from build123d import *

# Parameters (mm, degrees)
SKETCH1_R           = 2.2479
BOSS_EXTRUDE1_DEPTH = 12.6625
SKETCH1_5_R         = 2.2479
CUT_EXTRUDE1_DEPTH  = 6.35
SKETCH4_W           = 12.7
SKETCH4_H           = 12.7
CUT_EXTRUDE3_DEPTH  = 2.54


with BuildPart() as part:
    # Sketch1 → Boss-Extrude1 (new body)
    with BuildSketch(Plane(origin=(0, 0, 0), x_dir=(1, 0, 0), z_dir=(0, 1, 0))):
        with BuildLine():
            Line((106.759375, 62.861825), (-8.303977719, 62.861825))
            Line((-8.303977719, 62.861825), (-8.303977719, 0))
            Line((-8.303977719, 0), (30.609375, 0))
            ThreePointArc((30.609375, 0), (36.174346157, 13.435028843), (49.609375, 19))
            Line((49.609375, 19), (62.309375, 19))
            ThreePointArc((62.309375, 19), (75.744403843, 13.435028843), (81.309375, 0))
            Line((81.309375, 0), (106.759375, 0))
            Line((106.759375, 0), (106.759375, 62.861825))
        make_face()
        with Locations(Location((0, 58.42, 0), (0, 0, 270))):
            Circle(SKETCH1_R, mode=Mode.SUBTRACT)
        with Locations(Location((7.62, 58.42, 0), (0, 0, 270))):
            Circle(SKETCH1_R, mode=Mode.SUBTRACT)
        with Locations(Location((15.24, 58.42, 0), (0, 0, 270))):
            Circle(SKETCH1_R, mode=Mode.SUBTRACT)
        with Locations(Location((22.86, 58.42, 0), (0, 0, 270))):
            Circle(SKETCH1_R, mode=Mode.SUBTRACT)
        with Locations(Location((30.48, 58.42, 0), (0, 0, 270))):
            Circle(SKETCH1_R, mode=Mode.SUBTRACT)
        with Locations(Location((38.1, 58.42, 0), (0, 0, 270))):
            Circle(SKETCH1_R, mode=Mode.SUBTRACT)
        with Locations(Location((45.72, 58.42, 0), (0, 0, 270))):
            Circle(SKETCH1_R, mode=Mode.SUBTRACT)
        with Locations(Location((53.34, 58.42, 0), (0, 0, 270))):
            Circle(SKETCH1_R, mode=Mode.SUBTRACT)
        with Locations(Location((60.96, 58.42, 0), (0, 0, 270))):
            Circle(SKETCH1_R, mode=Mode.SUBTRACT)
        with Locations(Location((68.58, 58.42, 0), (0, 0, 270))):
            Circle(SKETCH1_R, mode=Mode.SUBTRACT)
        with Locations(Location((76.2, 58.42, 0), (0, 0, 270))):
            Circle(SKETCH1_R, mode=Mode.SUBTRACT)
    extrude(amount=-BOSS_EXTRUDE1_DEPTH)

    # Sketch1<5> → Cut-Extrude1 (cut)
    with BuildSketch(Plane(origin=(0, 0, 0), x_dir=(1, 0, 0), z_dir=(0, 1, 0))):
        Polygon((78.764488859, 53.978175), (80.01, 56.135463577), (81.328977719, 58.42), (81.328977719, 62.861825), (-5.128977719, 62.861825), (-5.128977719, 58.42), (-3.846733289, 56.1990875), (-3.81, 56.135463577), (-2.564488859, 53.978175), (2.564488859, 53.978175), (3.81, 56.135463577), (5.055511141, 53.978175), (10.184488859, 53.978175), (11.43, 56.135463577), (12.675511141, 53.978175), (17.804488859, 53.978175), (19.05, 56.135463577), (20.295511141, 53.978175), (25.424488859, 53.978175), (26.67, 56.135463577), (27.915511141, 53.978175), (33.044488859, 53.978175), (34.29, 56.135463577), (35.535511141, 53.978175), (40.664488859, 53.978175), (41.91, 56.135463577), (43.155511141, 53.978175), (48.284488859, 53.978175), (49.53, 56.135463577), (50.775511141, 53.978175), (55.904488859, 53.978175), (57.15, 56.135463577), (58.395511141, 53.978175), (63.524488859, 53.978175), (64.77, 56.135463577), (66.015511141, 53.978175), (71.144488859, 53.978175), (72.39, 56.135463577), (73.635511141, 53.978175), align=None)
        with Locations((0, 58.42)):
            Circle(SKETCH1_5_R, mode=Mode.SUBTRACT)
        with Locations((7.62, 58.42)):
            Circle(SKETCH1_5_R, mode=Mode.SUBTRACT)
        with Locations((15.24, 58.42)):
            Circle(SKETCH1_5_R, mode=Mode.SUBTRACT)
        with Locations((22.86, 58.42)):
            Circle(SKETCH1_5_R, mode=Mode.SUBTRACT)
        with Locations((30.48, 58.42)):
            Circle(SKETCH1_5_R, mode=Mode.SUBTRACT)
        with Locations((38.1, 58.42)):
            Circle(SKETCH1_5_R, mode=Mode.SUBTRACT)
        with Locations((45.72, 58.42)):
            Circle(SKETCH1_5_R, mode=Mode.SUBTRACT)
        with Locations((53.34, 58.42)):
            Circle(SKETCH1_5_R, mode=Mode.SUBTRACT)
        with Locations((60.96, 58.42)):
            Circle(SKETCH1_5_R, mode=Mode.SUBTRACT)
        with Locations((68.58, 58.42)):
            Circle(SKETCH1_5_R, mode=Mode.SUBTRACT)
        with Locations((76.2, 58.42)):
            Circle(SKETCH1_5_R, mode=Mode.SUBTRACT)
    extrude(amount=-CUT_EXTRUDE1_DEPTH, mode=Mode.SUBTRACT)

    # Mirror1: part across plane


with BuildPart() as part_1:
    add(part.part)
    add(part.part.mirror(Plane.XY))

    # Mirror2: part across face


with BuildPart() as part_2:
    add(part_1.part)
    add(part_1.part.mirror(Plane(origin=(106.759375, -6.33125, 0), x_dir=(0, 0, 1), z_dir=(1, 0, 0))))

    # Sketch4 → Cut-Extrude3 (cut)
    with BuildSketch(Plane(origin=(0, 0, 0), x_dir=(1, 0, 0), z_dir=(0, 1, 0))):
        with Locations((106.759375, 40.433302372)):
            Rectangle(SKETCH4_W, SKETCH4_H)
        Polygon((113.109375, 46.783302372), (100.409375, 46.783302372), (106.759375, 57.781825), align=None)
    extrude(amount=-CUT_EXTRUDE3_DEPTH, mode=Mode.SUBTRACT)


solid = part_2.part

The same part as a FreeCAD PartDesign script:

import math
import FreeCAD as App
import Part
import Sketcher
Q = App.Units.Quantity


def add_polygon(sketch, points):
    """Adds a closed chain of lines whose ends are joined by coincident constraints."""
    first, n = sketch.GeometryCount, len(points)
    for a, b in zip(points, points[1:] + points[:1]):
        sketch.addGeometry(Part.LineSegment(App.Vector(*a, 0), App.Vector(*b, 0)), False)
    for i in range(n):
        sketch.addConstraint(Sketcher.Constraint("Coincident", first + i, 2, first + (i + 1) % n, 1))

doc = App.newDocument("Part")
body = doc.addObject("PartDesign::Body", "Body")

# Sketch on XZ plane
sketch1 = doc.addObject("Sketcher::SketchObject", "Sketch")
body.addObject(sketch1)
sketch1.AttachmentSupport = (doc.XZ_Plane, [""])
sketch1.MapMode = "FlatFace"
sketch1.addGeometry([
    Part.LineSegment(App.Vector(106.759375, -62.861825, 0), App.Vector(-8.303978, -62.861825, 0)),  # 0
    Part.LineSegment(App.Vector(-8.303978, -62.861825, 0), App.Vector(-8.303978, 0, 0)),  # 1
    Part.LineSegment(App.Vector(-8.303978, 0, 0), App.Vector(30.609375, 0, 0)),  # 2
    Part.ArcOfCircle(Part.Circle(App.Vector(49.609375, 0, 0), App.Vector(0, 0, 1), 19), math.radians(180), math.radians(270)),  # 3
    Part.LineSegment(App.Vector(49.609375, -19, 0), App.Vector(62.309375, -19, 0)),  # 4
    Part.ArcOfCircle(Part.Circle(App.Vector(62.309375, 0, 0), App.Vector(0, 0, 1), 19), math.radians(-90), math.radians(0)),  # 5
    Part.LineSegment(App.Vector(81.309375, 0, 0), App.Vector(106.759375, 0, 0)),  # 6
    Part.LineSegment(App.Vector(106.759375, 0, 0), App.Vector(106.759375, -62.861825, 0)),  # 7
    Part.Circle(App.Vector(0, -58.42, 0), App.Vector(0, 0, 1), 2.2479),  # 8
    Part.Circle(App.Vector(7.62, -58.42, 0), App.Vector(0, 0, 1), 2.2479),  # 9
    Part.Circle(App.Vector(15.24, -58.42, 0), App.Vector(0, 0, 1), 2.2479),  # 10
    Part.Circle(App.Vector(22.86, -58.42, 0), App.Vector(0, 0, 1), 2.2479),  # 11
    Part.Circle(App.Vector(30.48, -58.42, 0), App.Vector(0, 0, 1), 2.2479),  # 12
    Part.Circle(App.Vector(38.1, -58.42, 0), App.Vector(0, 0, 1), 2.2479),  # 13
    Part.Circle(App.Vector(45.72, -58.42, 0), App.Vector(0, 0, 1), 2.2479),  # 14
    Part.Circle(App.Vector(53.34, -58.42, 0), App.Vector(0, 0, 1), 2.2479),  # 15
    Part.Circle(App.Vector(60.96, -58.42, 0), App.Vector(0, 0, 1), 2.2479),  # 16
    Part.Circle(App.Vector(68.58, -58.42, 0), App.Vector(0, 0, 1), 2.2479),  # 17
    Part.Circle(App.Vector(76.2, -58.42, 0), App.Vector(0, 0, 1), 2.2479),  # 18
], False)
sketch1.addConstraint([
    Sketcher.Constraint("Coincident", 0, 2, 1, 1),
    Sketcher.Constraint("Coincident", 1, 2, 2, 1),
    Sketcher.Constraint("Coincident", 2, 2, 3, 1),
    Sketcher.Constraint("Tangent", 3, 2, 4, 1),
    Sketcher.Constraint("Tangent", 4, 2, 5, 1),
    Sketcher.Constraint("Coincident", 5, 2, 6, 1),
    Sketcher.Constraint("Coincident", 6, 2, 7, 1),
    Sketcher.Constraint("Coincident", 7, 2, 0, 1),
    Sketcher.Constraint("Horizontal", 0),
    Sketcher.Constraint("Vertical", 1),
    Sketcher.Constraint("Horizontal", 2),
    Sketcher.Constraint("Horizontal", 4),
    Sketcher.Constraint("Horizontal", 6),
    Sketcher.Constraint("Vertical", 7),
    Sketcher.Constraint("Equal", 3, 5),
    Sketcher.Constraint("Equal", 8, 9),
    Sketcher.Constraint("Equal", 9, 10),
    Sketcher.Constraint("Equal", 10, 11),
    Sketcher.Constraint("Equal", 11, 12),
    Sketcher.Constraint("Equal", 12, 13),
    Sketcher.Constraint("Equal", 13, 14),
    Sketcher.Constraint("Equal", 14, 15),
    Sketcher.Constraint("Equal", 15, 16),
    Sketcher.Constraint("Equal", 16, 17),
    Sketcher.Constraint("Equal", 17, 18),
    Sketcher.Constraint("PointOnObject", 3, 3, -1),
    Sketcher.Constraint("PointOnObject", 8, 3, -2),
    Sketcher.Constraint("PointOnObject", 1, 2, -1),
    Sketcher.Constraint("PointOnObject", 5, 2, -1),
    Sketcher.Constraint("Horizontal", 8, 3, 9, 3),
    Sketcher.Constraint("Horizontal", 9, 3, 10, 3),
    Sketcher.Constraint("Horizontal", 10, 3, 11, 3),
    Sketcher.Constraint("Horizontal", 11, 3, 12, 3),
    Sketcher.Constraint("Horizontal", 12, 3, 13, 3),
    Sketcher.Constraint("Horizontal", 13, 3, 14, 3),
    Sketcher.Constraint("Horizontal", 14, 3, 15, 3),
    Sketcher.Constraint("Horizontal", 15, 3, 16, 3),
    Sketcher.Constraint("Horizontal", 16, 3, 17, 3),
    Sketcher.Constraint("Horizontal", 17, 3, 18, 3),
    Sketcher.Constraint("Diameter", 8, Q("0.177 in")),
    Sketcher.Constraint("DistanceX", 4, 1, 4, 2, Q("0.5 in")),
    Sketcher.Constraint("DistanceX", -1, 1, 18, 3, Q("3 in")),
    Sketcher.Constraint("DistanceY", 8, 3, -1, 1, Q("2.3 in")),
    Sketcher.Constraint("DistanceX", -1, 1, 9, 3, Q("0.3 in")),
    Sketcher.Constraint("DistanceX", -1, 1, 10, 3, Q("0.6 in")),
    Sketcher.Constraint("DistanceX", -1, 1, 11, 3, Q("0.9 in")),
    Sketcher.Constraint("DistanceX", -1, 1, 12, 3, Q("1.2 in")),
    Sketcher.Constraint("DistanceX", -1, 1, 13, 3, Q("1.5 in")),
    Sketcher.Constraint("DistanceX", -1, 1, 14, 3, Q("1.8 in")),
    Sketcher.Constraint("DistanceX", -1, 1, 15, 3, Q("2.1 in")),
    Sketcher.Constraint("DistanceX", -1, 1, 16, 3, Q("2.4 in")),
    Sketcher.Constraint("DistanceX", -1, 1, 17, 3, Q("2.7 in")),
    Sketcher.Constraint("Radius", 3, 19.0),
    Sketcher.Constraint("DistanceX", 5, 3, 6, 2, Q("1.75 in")),
    Sketcher.Constraint("DistanceX", -1, 1, 3, 3, Q("1.953125 in")),
    Sketcher.Constraint("DistanceX", 0, 2, 0, 1, 115.063353),
    Sketcher.Constraint("DistanceY", 1, 1, 1, 2, 62.861825),
])
pad1 = doc.addObject("PartDesign::Pad", "Pad")
body.addObject(pad1)
pad1.Profile = sketch1
pad1.Length = 12.6625

# Sketch on XZ plane
sketch2 = doc.addObject("Sketcher::SketchObject", "Sketch001")
body.addObject(sketch2)
sketch2.AttachmentSupport = (doc.XZ_Plane, [""])
sketch2.MapMode = "FlatFace"
add_polygon(sketch2, [(78.764489, -53.978175), (80.01, -56.135464), (81.328978, -58.42), (81.328978, -62.861825), (-5.128978, -62.861825), (-5.128978, -58.42), (-3.846733, -56.199087), (-3.81, -56.135464), (-2.564489, -53.978175), (2.564489, -53.978175), (3.81, -56.135464), (5.055511, -53.978175), (10.184489, -53.978175), (11.43, -56.135464), (12.675511, -53.978175), (17.804489, -53.978175), (19.05, -56.135464), (20.295511, -53.978175), (25.424489, -53.978175), (26.67, -56.135464), (27.915511, -53.978175), (33.044489, -53.978175), (34.29, -56.135464), (35.535511, -53.978175), (40.664489, -53.978175), (41.91, -56.135464), (43.155511, -53.978175), (48.284489, -53.978175), (49.53, -56.135464), (50.775511, -53.978175), (55.904489, -53.978175), (57.15, -56.135464), (58.395511, -53.978175), (63.524489, -53.978175), (64.77, -56.135464), (66.015511, -53.978175), (71.144489, -53.978175), (72.39, -56.135464), (73.635511, -53.978175)])  # lines 0-38
sketch2.addGeometry(Part.Circle(App.Vector(0, -58.42, 0), App.Vector(0, 0, 1), 2.2479), False)  # 39
sketch2.addGeometry(Part.Circle(App.Vector(7.62, -58.42, 0), App.Vector(0, 0, 1), 2.2479), False)  # 40
sketch2.addGeometry(Part.Circle(App.Vector(15.24, -58.42, 0), App.Vector(0, 0, 1), 2.2479), False)  # 41
sketch2.addGeometry(Part.Circle(App.Vector(22.86, -58.42, 0), App.Vector(0, 0, 1), 2.2479), False)  # 42
sketch2.addGeometry(Part.Circle(App.Vector(30.48, -58.42, 0), App.Vector(0, 0, 1), 2.2479), False)  # 43
sketch2.addGeometry(Part.Circle(App.Vector(38.1, -58.42, 0), App.Vector(0, 0, 1), 2.2479), False)  # 44
sketch2.addGeometry(Part.Circle(App.Vector(45.72, -58.42, 0), App.Vector(0, 0, 1), 2.2479), False)  # 45
sketch2.addGeometry(Part.Circle(App.Vector(53.34, -58.42, 0), App.Vector(0, 0, 1), 2.2479), False)  # 46
sketch2.addGeometry(Part.Circle(App.Vector(60.96, -58.42, 0), App.Vector(0, 0, 1), 2.2479), False)  # 47
sketch2.addGeometry(Part.Circle(App.Vector(68.58, -58.42, 0), App.Vector(0, 0, 1), 2.2479), False)  # 48
sketch2.addGeometry(Part.Circle(App.Vector(76.2, -58.42, 0), App.Vector(0, 0, 1), 2.2479), False)  # 49
sketch2.addConstraint([
    Sketcher.Constraint("Vertical", 2),
    Sketcher.Constraint("Horizontal", 3),
    Sketcher.Constraint("Vertical", 4),
    Sketcher.Constraint("Horizontal", 8),
    Sketcher.Constraint("Horizontal", 11),
    Sketcher.Constraint("Horizontal", 14),
    Sketcher.Constraint("Horizontal", 17),
    Sketcher.Constraint("Horizontal", 20),
    Sketcher.Constraint("Horizontal", 23),
    Sketcher.Constraint("Horizontal", 26),
    Sketcher.Constraint("Horizontal", 29),
    Sketcher.Constraint("Horizontal", 32),
    Sketcher.Constraint("Horizontal", 35),
    Sketcher.Constraint("Horizontal", 38),
    Sketcher.Constraint("Equal", 39, 40),
    Sketcher.Constraint("Equal", 40, 41),
    Sketcher.Constraint("Equal", 41, 42),
    Sketcher.Constraint("Equal", 42, 43),
    Sketcher.Constraint("Equal", 43, 44),
    Sketcher.Constraint("Equal", 44, 45),
    Sketcher.Constraint("Equal", 45, 46),
    Sketcher.Constraint("Equal", 46, 47),
    Sketcher.Constraint("Equal", 47, 48),
    Sketcher.Constraint("Equal", 48, 49),
    Sketcher.Constraint("Symmetric", 6, 2, 9, 2, -2),
    Sketcher.Constraint("PointOnObject", 39, 3, -2),
    Sketcher.Constraint("Parallel", 0, 1),
    Sketcher.Constraint("Parallel", 5, 6),
    Sketcher.Constraint("Parallel", 6, 7),
    Sketcher.Constraint("Parallel", 1, 9),
    Sketcher.Constraint("Parallel", 7, 10),
    Sketcher.Constraint("Parallel", 9, 12),
    Sketcher.Constraint("Parallel", 10, 13),
    Sketcher.Constraint("Parallel", 12, 15),
    Sketcher.Constraint("Parallel", 13, 16),
    Sketcher.Constraint("Parallel", 15, 18),
    Sketcher.Constraint("Parallel", 16, 19),
    Sketcher.Constraint("Parallel", 18, 21),
    Sketcher.Constraint("Parallel", 19, 22),
    Sketcher.Constraint("Parallel", 21, 24),
    Sketcher.Constraint("Parallel", 22, 25),
    Sketcher.Constraint("Parallel", 24, 27),
    Sketcher.Constraint("Parallel", 25, 28),
    Sketcher.Constraint("Parallel", 27, 30),
    Sketcher.Constraint("Parallel", 28, 31),
    Sketcher.Constraint("Parallel", 30, 33),
    Sketcher.Constraint("Parallel", 31, 34),
    Sketcher.Constraint("Parallel", 33, 36),
    Sketcher.Constraint("Parallel", 34, 37),
    Sketcher.Constraint("Horizontal", 39, 3, 40, 3),
    Sketcher.Constraint("Horizontal", 40, 3, 41, 3),
    Sketcher.Constraint("Horizontal", 41, 3, 42, 3),
    Sketcher.Constraint("Horizontal", 42, 3, 43, 3),
    Sketcher.Constraint("Horizontal", 43, 3, 44, 3),
    Sketcher.Constraint("Horizontal", 44, 3, 45, 3),
    Sketcher.Constraint("Horizontal", 45, 3, 46, 3),
    Sketcher.Constraint("Horizontal", 46, 3, 47, 3),
    Sketcher.Constraint("Horizontal", 47, 3, 48, 3),
    Sketcher.Constraint("Horizontal", 48, 3, 49, 3),
    Sketcher.Constraint("Horizontal", 49, 3, 1, 2),
    Sketcher.Constraint("Horizontal", 1, 2, 4, 2),
    Sketcher.Constraint("Horizontal", 0, 2, 6, 2),
    Sketcher.Constraint("Horizontal", 8, 2, 10, 2),
    Sketcher.Constraint("Horizontal", 9, 2, 12, 2),
    Sketcher.Constraint("Horizontal", 11, 2, 13, 2),
    Sketcher.Constraint("Horizontal", 12, 2, 15, 2),
    Sketcher.Constraint("Horizontal", 14, 2, 16, 2),
    Sketcher.Constraint("Horizontal", 15, 2, 18, 2),
    Sketcher.Constraint("Horizontal", 17, 2, 19, 2),
    Sketcher.Constraint("Horizontal", 18, 2, 21, 2),
    Sketcher.Constraint("Horizontal", 20, 2, 22, 2),
    Sketcher.Constraint("Horizontal", 21, 2, 24, 2),
    Sketcher.Constraint("Horizontal", 23, 2, 25, 2),
    Sketcher.Constraint("Horizontal", 24, 2, 27, 2),
    Sketcher.Constraint("Horizontal", 26, 2, 28, 2),
    Sketcher.Constraint("Horizontal", 27, 2, 30, 2),
    Sketcher.Constraint("Horizontal", 29, 2, 31, 2),
    Sketcher.Constraint("Horizontal", 30, 2, 33, 2),
    Sketcher.Constraint("Horizontal", 32, 2, 34, 2),
    Sketcher.Constraint("Horizontal", 33, 2, 36, 2),
    Sketcher.Constraint("Horizontal", 35, 2, 37, 2),
    Sketcher.Constraint("Equal", 8, 11),
    Sketcher.Constraint("Equal", 11, 14),
    Sketcher.Constraint("Equal", 14, 17),
    Sketcher.Constraint("Equal", 17, 20),
    Sketcher.Constraint("Equal", 20, 23),
    Sketcher.Constraint("Equal", 23, 26),
    Sketcher.Constraint("Equal", 26, 29),
    Sketcher.Constraint("Equal", 29, 32),
    Sketcher.Constraint("Equal", 32, 35),
    Sketcher.Constraint("Equal", 35, 38),
    Sketcher.Constraint("Equal", 0, 7),
    Sketcher.Constraint("Diameter", 39, Q("0.177 in")),
    Sketcher.Constraint("DistanceX", -1, 1, 49, 3, Q("3 in")),
    Sketcher.Constraint("Angle", 0, Q("-60 deg")),
    Sketcher.Constraint("DistanceY", 39, 3, -1, 1, Q("2.3 in")),
    Sketcher.Constraint("DistanceX", -1, 1, 40, 3, Q("0.3 in")),
    Sketcher.Constraint("DistanceX", -1, 1, 41, 3, Q("0.6 in")),
    Sketcher.Constraint("DistanceX", -1, 1, 42, 3, Q("0.9 in")),
    Sketcher.Constraint("DistanceX", -1, 1, 43, 3, Q("1.2 in")),
    Sketcher.Constraint("DistanceX", -1, 1, 44, 3, Q("1.5 in")),
    Sketcher.Constraint("DistanceX", -1, 1, 45, 3, Q("1.8 in")),
    Sketcher.Constraint("DistanceX", -1, 1, 46, 3, Q("2.1 in")),
    Sketcher.Constraint("DistanceX", -1, 1, 47, 3, Q("2.4 in")),
    Sketcher.Constraint("DistanceX", -1, 1, 48, 3, Q("2.7 in")),
    Sketcher.Constraint("DistanceX", 6, 2, 9, 2, Q("0.3 in")),
    Sketcher.Constraint("Distance", 5, 2.564489),
    Sketcher.Constraint("DistanceX", 3, 2, 3, 1, 86.457955),
    Sketcher.Constraint("DistanceX", 8, 1, 8, 2, 5.128978),
    Sketcher.Constraint("DistanceY", 2, 2, 2, 1, 4.441825),
])
pocket1 = doc.addObject("PartDesign::Pocket", "Pocket")
body.addObject(pocket1)
pocket1.Profile = sketch2
pocket1.Length = Q("0.25 in")
pocket1.Reversed = True
body2 = doc.addObject("PartDesign::Body", "Body001")
doc.recompute()

body2.BaseFeature = body
doc.recompute()

mirroring = doc.addObject("Part::Mirroring", "Mirroring")
mirroring.Source = body
mirroring.Base = App.Vector(0, 0, 0)
mirroring.Normal = App.Vector(0, 0, 1)
body3 = doc.addObject("PartDesign::Body", "Body002")
body3.BaseFeature = mirroring
boolean = doc.addObject("PartDesign::Boolean", "Boolean")
body2.addObject(boolean)
boolean.Type = "Fuse"
boolean.addObjects([body3])
doc.recompute()
body4 = doc.addObject("PartDesign::Body", "Body003")
doc.recompute()

body4.BaseFeature = body2
doc.recompute()

mirroring2 = doc.addObject("Part::Mirroring", "Mirroring001")
mirroring2.Source = body2
mirroring2.Base = App.Vector(106.759375, -6.33125, 0)
mirroring2.Normal = App.Vector(1, 0, 0)
body5 = doc.addObject("PartDesign::Body", "Body004")
body5.BaseFeature = mirroring2
boolean2 = doc.addObject("PartDesign::Boolean", "Boolean001")
body4.addObject(boolean2)
boolean2.Type = "Fuse"
boolean2.addObjects([body5])
doc.recompute()

# Sketch on XZ plane
sketch3 = doc.addObject("Sketcher::SketchObject", "Sketch002")
body4.addObject(sketch3)
sketch3.AttachmentSupport = (doc.getObject("XZ_Plane003"), [""])
sketch3.MapMode = "FlatFace"
add_polygon(sketch3, [(100.409375, -46.783302), (100.409375, -34.083302), (113.109375, -34.083302), (113.109375, -46.783302), (106.759375, -57.781825)])  # lines 0-4
sketch3.addConstraint([
    Sketcher.Constraint("Vertical", 0),
    Sketcher.Constraint("Horizontal", 1),
    Sketcher.Constraint("Vertical", 2),
    Sketcher.Constraint("Horizontal", 2, 2, 4, 2),
    Sketcher.Constraint("Equal", 1, 0),
    Sketcher.Constraint("Equal", 3, 4),
    Sketcher.Constraint("DistanceX", 1, 1, 1, 2, Q("0.5 in")),
    Sketcher.Constraint("Angle", 3, Q("-120 deg")),
    Sketcher.Constraint("DistanceX", -1, 1, 0, 2, Q("3.953125 in")),
    Sketcher.Constraint("DistanceY", 0, 2, -1, 1, 34.083302),
])
pocket2 = doc.addObject("PartDesign::Pocket", "Pocket001")
body4.addObject(pocket2)
pocket2.Profile = sketch3
pocket2.Length = Q("0.1 in")
pocket2.Reversed = True
mirroring.Visibility = False
mirroring2.Visibility = False

doc.recompute()
